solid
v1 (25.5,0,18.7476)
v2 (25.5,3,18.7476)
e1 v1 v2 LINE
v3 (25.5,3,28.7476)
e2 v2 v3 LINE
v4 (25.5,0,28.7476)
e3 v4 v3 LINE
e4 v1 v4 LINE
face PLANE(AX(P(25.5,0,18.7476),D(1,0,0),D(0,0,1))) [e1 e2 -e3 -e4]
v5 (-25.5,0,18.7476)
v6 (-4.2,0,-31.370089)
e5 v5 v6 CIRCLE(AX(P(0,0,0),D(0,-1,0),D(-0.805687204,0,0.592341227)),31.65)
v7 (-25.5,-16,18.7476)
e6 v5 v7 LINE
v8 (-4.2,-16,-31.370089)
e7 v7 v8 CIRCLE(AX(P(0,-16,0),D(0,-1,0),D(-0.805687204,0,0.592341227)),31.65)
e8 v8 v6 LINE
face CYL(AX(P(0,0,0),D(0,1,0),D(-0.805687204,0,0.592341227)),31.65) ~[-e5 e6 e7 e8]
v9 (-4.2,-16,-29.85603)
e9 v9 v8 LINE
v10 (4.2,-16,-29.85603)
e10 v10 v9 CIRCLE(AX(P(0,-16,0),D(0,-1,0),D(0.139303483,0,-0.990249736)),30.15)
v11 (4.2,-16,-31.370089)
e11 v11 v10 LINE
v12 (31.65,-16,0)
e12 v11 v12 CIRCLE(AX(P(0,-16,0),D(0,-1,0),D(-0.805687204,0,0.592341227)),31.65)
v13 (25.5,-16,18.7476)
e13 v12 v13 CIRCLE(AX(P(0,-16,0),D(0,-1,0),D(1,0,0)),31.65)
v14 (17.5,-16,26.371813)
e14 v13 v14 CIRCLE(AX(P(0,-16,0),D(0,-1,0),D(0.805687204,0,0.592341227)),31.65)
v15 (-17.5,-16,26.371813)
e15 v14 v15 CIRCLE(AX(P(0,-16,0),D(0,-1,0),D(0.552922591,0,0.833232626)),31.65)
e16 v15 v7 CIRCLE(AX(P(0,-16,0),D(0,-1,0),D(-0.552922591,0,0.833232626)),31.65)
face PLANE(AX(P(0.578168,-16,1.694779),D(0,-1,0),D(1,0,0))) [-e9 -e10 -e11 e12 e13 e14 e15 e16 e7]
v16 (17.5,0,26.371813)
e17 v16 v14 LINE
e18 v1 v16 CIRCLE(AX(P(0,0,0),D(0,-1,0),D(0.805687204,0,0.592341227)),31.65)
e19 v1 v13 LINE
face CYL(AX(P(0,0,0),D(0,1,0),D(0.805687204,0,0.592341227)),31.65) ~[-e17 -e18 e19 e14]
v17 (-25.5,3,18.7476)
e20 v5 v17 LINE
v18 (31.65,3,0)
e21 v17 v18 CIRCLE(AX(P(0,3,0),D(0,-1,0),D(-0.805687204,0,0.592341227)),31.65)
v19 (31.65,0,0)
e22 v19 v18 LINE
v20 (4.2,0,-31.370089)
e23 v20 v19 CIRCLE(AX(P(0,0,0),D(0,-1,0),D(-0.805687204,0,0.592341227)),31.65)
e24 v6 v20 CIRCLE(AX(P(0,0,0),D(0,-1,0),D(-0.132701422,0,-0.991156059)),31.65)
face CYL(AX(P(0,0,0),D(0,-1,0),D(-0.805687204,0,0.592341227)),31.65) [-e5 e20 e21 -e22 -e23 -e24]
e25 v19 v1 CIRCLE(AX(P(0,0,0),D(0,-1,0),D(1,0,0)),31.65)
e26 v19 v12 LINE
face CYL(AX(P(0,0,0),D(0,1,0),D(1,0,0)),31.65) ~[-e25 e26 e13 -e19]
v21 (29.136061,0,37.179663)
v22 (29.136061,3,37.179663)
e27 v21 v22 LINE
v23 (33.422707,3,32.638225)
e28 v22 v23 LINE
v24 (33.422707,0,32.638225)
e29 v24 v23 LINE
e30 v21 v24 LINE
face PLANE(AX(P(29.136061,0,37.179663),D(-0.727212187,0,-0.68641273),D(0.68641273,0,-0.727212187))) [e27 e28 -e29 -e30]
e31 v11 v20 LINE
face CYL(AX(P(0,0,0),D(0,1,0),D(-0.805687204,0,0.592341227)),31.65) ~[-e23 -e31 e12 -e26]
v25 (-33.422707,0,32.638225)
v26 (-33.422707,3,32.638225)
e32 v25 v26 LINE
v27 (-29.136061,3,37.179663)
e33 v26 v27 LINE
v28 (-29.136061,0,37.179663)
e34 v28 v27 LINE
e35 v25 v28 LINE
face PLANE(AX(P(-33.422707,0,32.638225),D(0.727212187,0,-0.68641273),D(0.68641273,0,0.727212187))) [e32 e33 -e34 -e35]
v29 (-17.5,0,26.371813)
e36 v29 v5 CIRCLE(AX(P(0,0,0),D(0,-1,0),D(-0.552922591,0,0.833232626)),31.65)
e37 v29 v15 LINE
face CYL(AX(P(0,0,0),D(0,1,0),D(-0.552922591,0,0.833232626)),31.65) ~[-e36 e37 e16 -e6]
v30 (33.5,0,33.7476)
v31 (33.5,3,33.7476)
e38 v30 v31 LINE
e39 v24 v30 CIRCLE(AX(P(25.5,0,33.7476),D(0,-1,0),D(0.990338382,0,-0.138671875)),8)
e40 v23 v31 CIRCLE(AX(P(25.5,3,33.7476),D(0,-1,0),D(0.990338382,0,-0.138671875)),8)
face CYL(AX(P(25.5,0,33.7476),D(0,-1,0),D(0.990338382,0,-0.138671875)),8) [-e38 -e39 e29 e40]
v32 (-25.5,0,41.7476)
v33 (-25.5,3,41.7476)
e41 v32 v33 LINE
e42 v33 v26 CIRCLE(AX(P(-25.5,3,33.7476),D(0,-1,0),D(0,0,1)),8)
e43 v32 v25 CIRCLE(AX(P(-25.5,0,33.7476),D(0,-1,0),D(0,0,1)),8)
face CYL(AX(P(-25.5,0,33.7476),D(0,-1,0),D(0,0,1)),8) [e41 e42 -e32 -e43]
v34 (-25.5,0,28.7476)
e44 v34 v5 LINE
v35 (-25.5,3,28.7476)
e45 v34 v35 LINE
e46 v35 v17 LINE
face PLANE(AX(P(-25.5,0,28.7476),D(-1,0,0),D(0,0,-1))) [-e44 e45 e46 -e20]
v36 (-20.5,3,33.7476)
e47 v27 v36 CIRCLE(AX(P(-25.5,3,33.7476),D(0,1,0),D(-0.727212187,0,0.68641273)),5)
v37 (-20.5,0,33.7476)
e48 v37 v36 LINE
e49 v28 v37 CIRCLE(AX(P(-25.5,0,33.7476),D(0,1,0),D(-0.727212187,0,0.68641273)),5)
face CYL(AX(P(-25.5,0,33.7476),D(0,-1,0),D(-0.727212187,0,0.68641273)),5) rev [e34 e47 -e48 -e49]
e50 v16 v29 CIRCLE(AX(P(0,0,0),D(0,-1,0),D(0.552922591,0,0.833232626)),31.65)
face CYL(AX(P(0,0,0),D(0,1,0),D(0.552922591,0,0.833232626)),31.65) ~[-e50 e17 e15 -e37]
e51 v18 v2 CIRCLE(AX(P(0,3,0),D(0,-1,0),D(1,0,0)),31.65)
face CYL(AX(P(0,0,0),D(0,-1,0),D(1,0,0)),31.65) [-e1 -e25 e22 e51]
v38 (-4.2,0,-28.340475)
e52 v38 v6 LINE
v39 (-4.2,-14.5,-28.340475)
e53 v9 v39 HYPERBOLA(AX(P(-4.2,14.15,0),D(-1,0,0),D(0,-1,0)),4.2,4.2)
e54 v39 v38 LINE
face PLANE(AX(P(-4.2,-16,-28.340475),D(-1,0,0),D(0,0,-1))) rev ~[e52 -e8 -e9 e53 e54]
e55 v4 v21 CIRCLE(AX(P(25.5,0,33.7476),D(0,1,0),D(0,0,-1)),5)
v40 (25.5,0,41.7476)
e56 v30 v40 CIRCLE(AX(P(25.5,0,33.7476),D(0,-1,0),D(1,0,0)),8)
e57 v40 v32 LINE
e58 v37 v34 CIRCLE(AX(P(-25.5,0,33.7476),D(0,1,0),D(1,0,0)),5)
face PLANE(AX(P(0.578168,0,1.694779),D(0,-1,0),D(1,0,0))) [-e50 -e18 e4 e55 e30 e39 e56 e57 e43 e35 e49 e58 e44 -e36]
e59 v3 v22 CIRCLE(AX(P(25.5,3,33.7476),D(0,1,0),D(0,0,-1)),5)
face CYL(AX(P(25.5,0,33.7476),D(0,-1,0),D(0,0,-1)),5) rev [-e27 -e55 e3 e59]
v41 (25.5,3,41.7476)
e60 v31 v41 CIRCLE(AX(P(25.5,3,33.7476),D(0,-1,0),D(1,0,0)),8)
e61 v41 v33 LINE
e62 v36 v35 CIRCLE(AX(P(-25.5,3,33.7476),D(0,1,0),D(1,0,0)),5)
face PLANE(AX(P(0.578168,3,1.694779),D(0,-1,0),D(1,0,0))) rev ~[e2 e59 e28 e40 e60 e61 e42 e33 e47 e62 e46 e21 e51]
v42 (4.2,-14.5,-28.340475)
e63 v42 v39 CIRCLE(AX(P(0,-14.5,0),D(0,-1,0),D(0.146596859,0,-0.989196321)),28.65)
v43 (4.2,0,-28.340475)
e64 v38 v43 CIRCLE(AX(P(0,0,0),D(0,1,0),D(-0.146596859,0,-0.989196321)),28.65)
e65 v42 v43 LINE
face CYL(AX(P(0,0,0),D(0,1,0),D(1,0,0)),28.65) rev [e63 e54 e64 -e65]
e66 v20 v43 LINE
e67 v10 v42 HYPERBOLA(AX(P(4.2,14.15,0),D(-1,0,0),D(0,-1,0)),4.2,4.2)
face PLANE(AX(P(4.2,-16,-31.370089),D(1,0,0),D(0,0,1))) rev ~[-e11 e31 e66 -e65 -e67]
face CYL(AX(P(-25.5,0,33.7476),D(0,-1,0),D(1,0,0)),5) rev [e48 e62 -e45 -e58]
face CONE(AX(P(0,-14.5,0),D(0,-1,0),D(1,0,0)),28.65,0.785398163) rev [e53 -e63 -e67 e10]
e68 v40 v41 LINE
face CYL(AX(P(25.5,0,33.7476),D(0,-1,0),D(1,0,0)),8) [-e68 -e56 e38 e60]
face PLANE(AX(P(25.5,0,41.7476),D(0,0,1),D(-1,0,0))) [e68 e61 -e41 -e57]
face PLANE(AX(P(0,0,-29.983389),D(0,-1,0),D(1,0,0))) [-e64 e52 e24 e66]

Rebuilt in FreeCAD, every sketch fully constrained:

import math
import FreeCAD as App
import Part
import Sketcher

V = App.Vector


def edges_at(feature, points):
    """Names of the edges that pass closest to the given points."""
    edges = feature.Shape.Edges
    near = lambda p: min(range(len(edges)), key=lambda i: edges[i].distToShape(Part.Vertex(*p))[0])
    return sorted({f"Edge{near(p) + 1}" for p in points})

doc = App.newDocument("Part")
body = doc.addObject("PartDesign::Body", "Body")

# Sketch on XZ plane
sketch1 = body.newObject("Sketcher::SketchObject", "Sketch")
sketch1.AttachmentSupport = (doc.getObject("XZ_Plane"), [""])
sketch1.MapMode = "FlatFace"
sketch1.addGeometry(Part.ArcOfCircle(Part.Circle(V(-25.5, 33.7, 0), V(0, 0, 1), 5), math.radians(-90), math.radians(0)), False)
sketch1.addGeometry(Part.LineSegment(V(-25.5, 28.7, 0), V(-25.5, 18.7, 0)), False)
sketch1.addGeometry(Part.ArcOfCircle(Part.Circle(V(0, 0, 0), V(0, 0, 1), 31.6), math.radians(144), math.radians(360)), False)
sketch1.addGeometry(Part.ArcOfCircle(Part.Circle(V(0, 0, 0), V(0, 0, 1), 31.7), math.radians(0), math.radians(36)), False)
sketch1.addGeometry(Part.LineSegment(V(25.5, 18.7, 0), V(25.5, 28.7, 0)), False)
sketch1.addGeometry(Part.ArcOfCircle(Part.Circle(V(25.5, 33.7, 0), V(0, 0, 1), 5), math.radians(43), math.radians(270)), False)
sketch1.addGeometry(Part.LineSegment(V(29.1, 37.2, 0), V(33.4, 32.6, 0)), False)
sketch1.addGeometry(Part.ArcOfCircle(Part.Circle(V(25.5, 33.7, 0), V(0, 0, 1), 8), math.radians(-7.97), math.radians(0)), False)
sketch1.addGeometry(Part.ArcOfCircle(Part.Circle(V(25.5, 33.7, 0), V(0, 0, 1), 8), math.radians(0), math.radians(90)), False)
sketch1.addGeometry(Part.LineSegment(V(25.5, 41.7, 0), V(-25.5, 41.7, 0)), False)
sketch1.addGeometry(Part.ArcOfCircle(Part.Circle(V(-25.5, 33.7, 0), V(0, 0, 1), 8), math.radians(90), math.radians(188)), False)
sketch1.addGeometry(Part.LineSegment(V(-33.4, 32.6, 0), V(-29.1, 37.2, 0)), False)
sketch1.addGeometry(Part.ArcOfCircle(Part.Circle(V(-25.5, 33.7, 0), V(0, 0, 1), 5), math.radians(0), math.radians(137)), False)
sketch1.addConstraint(Sketcher.Constraint("Coincident", 0, 1, 1, 1))
sketch1.addConstraint(Sketcher.Constraint("Coincident", 1, 2, 2, 1))
sketch1.addConstraint(Sketcher.Constraint("Tangent", 2, 2, 3, 1))
sketch1.addConstraint(Sketcher.Constraint("Coincident", 3, 2, 4, 1))
sketch1.addConstraint(Sketcher.Constraint("Coincident", 4, 2, 5, 2))
sketch1.addConstraint(Sketcher.Constraint("Tangent", 5, 1, 6, 1))
sketch1.addConstraint(Sketcher.Constraint("Coincident", 6, 2, 7, 1))
sketch1.addConstraint(Sketcher.Constraint("Tangent", 7, 2, 8, 1))
sketch1.addConstraint(Sketcher.Constraint("Tangent", 8, 2, 9, 1))
sketch1.addConstraint(Sketcher.Constraint("Tangent", 9, 2, 10, 1))
sketch1.addConstraint(Sketcher.Constraint("Coincident", 10, 2, 11, 1))
sketch1.addConstraint(Sketcher.Constraint("Tangent", 11, 2, 12, 2))
sketch1.addConstraint(Sketcher.Constraint("Tangent", 12, 1, 0, 2))
sketch1.addConstraint(Sketcher.Constraint("Vertical", 1))
sketch1.addConstraint(Sketcher.Constraint("Vertical", 4))
sketch1.addConstraint(Sketcher.Constraint("Horizontal", 9))
sketch1.addConstraint(Sketcher.Constraint("Coincident", 2, 3, -1, 1))
sketch1.addConstraint(Sketcher.Constraint("Coincident", 7, 3, 5, 3))
sketch1.addConstraint(Sketcher.Constraint("Coincident", 10, 3, 0, 3))
sketch1.addConstraint(Sketcher.Constraint("Equal", 2, 3))
sketch1.addConstraint(Sketcher.Constraint("Equal", 0, 5))
sketch1.addConstraint(Sketcher.Constraint("Equal", 7, 8))
sketch1.addConstraint(Sketcher.Constraint("Equal", 8, 10))
sketch1.addConstraint(Sketcher.Constraint("Equal", 5, 12))
sketch1.addConstraint(Sketcher.Constraint("Symmetric", 6, 2, 10, 2, -2))
sketch1.addConstraint(Sketcher.Constraint("PointOnObject", 2, 2, -1))
sketch1.addConstraint(Sketcher.Constraint("Horizontal", 1, 2, 3, 2))
sketch1.addConstraint(Sketcher.Constraint("Horizontal", 12, 3, 7, 2))
sketch1.addConstraint(Sketcher.Constraint("Horizontal", 7, 2, 12, 1))
sketch1.addConstraint(Sketcher.Constraint("Vertical", 12, 3, 0, 1))
sketch1.addConstraint(Sketcher.Constraint("Radius", 0, 5.0))
sketch1.addConstraint(Sketcher.Constraint("Radius", 7, 8.0))
sketch1.addConstraint(Sketcher.Constraint("DistanceX", 9, 2, 9, 1, 51.0))
sketch1.addConstraint(Sketcher.Constraint("DistanceY", 1, 2, 1, 1, 10.0))
sketch1.addConstraint(Sketcher.Constraint("Radius", 2, 31.65))
sketch1.addConstraint(Sketcher.Constraint("DistanceX", -1, 1, 5, 1, 29.136061))
pad1 = body.newObject("PartDesign::Pad", "Pad")
pad1.Profile = sketch1
pad1.Length = 3
pad1.Reversed = True

# Sketch on XZ plane
sketch2 = body.newObject("Sketcher::SketchObject", "Sketch001")
sketch2.AttachmentSupport = (doc.getObject("XZ_Plane"), [""])
sketch2.MapMode = "FlatFace"
sketch2.addGeometry(Part.ArcOfCircle(Part.Circle(V(0, 0, 0), V(0, 0, 1), 32), math.radians(144), math.radians(360)), False)
sketch2.addGeometry(Part.ArcOfCircle(Part.Circle(V(0, 0, 0), V(0, 0, 1), 32), math.radians(0), math.radians(36)), False)
sketch2.addGeometry(Part.ArcOfCircle(Part.Circle(V(0, 0, 0), V(0, 0, 1), 32), math.radians(36), math.radians(56)), False)
sketch2.addGeometry(Part.ArcOfCircle(Part.Circle(V(0, 0, 0), V(0, 0, 1), 32), math.radians(56), math.radians(124)), False)
sketch2.addGeometry(Part.ArcOfCircle(Part.Circle(V(0, 0, 0), V(0, 0, 1), 32), math.radians(124), math.radians(144)), False)
sketch2.addGeometry(Part.Circle(V(0, 0, 0), V(0, 0, 1), 29), False)
sketch2.addConstraint(Sketcher.Constraint("Tangent", 0, 2, 1, 1))
sketch2.addConstraint(Sketcher.Constraint("Tangent", 1, 2, 2, 1))
sketch2.addConstraint(Sketcher.Constraint("Tangent", 2, 2, 3, 1))
sketch2.addConstraint(Sketcher.Constraint("Tangent", 3, 2, 4, 1))
sketch2.addConstraint(Sketcher.Constraint("Tangent", 4, 2, 0, 1))
sketch2.addConstraint(Sketcher.Constraint("Coincident", 0, 3, -1, 1))
sketch2.addConstraint(Sketcher.Constraint("Coincident", 2, 3, -1, 1))
sketch2.addConstraint(Sketcher.Constraint("Coincident", 5, 3, -1, 1))
sketch2.addConstraint(Sketcher.Constraint("PointOnObject", 0, 2, -1))
sketch2.addConstraint(Sketcher.Constraint("Horizontal", 2, 2, 3, 2))
sketch2.addConstraint(Sketcher.Constraint("Horizontal", 1, 2, 4, 2))
sketch2.addConstraint(Sketcher.Constraint("Diameter", 5, 57.3))
sketch2.addConstraint(Sketcher.Constraint("Radius", 0, 31.65))
sketch2.addConstraint(Sketcher.Constraint("DistanceX", 2, 2, 1, 2, 8.0))
sketch2.addConstraint(Sketcher.Constraint("DistanceX", -1, 1, 1, 2, 25.5))
pad2 = body.newObject("PartDesign::Pad", "Pad001")
pad2.Profile = sketch2
pad2.Length = 16

# Sketch on XZ plane
sketch3 = body.newObject("Sketcher::SketchObject", "Sketch002")
sketch3.AttachmentSupport = (doc.getObject("XZ_Plane"), [""])
sketch3.MapMode = "FlatFace"
sketch3.AttachmentOffset = App.Placement(V(0, 0, 16), App.Rotation())
sketch3.addGeometry(Part.ArcOfCircle(Part.Circle(V(0, 0, 0), V(0, 0, 1), 28.6), math.radians(-98.43), math.radians(-81.57)), False)
sketch3.addGeometry(Part.LineSegment(V(-4.2, -28.3, 0), V(-4.2, -31.4, 0)), False)
sketch3.addGeometry(Part.ArcOfCircle(Part.Circle(V(0, 0, 0), V(0, 0, 1), 31.6), math.radians(-97.63), math.radians(-82.37)), False)
sketch3.addGeometry(Part.LineSegment(V(4.2, -31.4, 0), V(4.2, -28.3, 0)), False)
sketch3.addConstraint(Sketcher.Constraint("Coincident", 0, 1, 1, 1))
sketch3.addConstraint(Sketcher.Constraint("Coincident", 1, 2, 2, 1))
sketch3.addConstraint(Sketcher.Constraint("Coincident", 2, 2, 3, 1))
sketch3.addConstraint(Sketcher.Constraint("Coincident", 3, 2, 0, 2))
sketch3.addConstraint(Sketcher.Constraint("Vertical", 1))
sketch3.addConstraint(Sketcher.Constraint("Vertical", 3))
sketch3.addConstraint(Sketcher.Constraint("Coincident", 0, 3, -1, 1))
sketch3.addConstraint(Sketcher.Constraint("Coincident", 2, 3, -1, 1))
sketch3.addConstraint(Sketcher.Constraint("Horizontal", 1, 2, 2, 2))
sketch3.addConstraint(Sketcher.Constraint("Radius", 0, 28.65))
sketch3.addConstraint(Sketcher.Constraint("Radius", 2, 31.65))
sketch3.addConstraint(Sketcher.Constraint("DistanceX", 0, 1, -1, 1, 4.2))
pocket1 = body.newObject("PartDesign::Pocket", "Pocket")
pocket1.Profile = sketch3
pocket1.Length = 16
doc.recompute()

chamfer = body.newObject("PartDesign::Chamfer", "Chamfer")
chamfer.Base = (pocket1, edges_at(pocket1, [(-18.715, -16, 21.693)]))
chamfer.Size = 1.5

doc.recompute()
